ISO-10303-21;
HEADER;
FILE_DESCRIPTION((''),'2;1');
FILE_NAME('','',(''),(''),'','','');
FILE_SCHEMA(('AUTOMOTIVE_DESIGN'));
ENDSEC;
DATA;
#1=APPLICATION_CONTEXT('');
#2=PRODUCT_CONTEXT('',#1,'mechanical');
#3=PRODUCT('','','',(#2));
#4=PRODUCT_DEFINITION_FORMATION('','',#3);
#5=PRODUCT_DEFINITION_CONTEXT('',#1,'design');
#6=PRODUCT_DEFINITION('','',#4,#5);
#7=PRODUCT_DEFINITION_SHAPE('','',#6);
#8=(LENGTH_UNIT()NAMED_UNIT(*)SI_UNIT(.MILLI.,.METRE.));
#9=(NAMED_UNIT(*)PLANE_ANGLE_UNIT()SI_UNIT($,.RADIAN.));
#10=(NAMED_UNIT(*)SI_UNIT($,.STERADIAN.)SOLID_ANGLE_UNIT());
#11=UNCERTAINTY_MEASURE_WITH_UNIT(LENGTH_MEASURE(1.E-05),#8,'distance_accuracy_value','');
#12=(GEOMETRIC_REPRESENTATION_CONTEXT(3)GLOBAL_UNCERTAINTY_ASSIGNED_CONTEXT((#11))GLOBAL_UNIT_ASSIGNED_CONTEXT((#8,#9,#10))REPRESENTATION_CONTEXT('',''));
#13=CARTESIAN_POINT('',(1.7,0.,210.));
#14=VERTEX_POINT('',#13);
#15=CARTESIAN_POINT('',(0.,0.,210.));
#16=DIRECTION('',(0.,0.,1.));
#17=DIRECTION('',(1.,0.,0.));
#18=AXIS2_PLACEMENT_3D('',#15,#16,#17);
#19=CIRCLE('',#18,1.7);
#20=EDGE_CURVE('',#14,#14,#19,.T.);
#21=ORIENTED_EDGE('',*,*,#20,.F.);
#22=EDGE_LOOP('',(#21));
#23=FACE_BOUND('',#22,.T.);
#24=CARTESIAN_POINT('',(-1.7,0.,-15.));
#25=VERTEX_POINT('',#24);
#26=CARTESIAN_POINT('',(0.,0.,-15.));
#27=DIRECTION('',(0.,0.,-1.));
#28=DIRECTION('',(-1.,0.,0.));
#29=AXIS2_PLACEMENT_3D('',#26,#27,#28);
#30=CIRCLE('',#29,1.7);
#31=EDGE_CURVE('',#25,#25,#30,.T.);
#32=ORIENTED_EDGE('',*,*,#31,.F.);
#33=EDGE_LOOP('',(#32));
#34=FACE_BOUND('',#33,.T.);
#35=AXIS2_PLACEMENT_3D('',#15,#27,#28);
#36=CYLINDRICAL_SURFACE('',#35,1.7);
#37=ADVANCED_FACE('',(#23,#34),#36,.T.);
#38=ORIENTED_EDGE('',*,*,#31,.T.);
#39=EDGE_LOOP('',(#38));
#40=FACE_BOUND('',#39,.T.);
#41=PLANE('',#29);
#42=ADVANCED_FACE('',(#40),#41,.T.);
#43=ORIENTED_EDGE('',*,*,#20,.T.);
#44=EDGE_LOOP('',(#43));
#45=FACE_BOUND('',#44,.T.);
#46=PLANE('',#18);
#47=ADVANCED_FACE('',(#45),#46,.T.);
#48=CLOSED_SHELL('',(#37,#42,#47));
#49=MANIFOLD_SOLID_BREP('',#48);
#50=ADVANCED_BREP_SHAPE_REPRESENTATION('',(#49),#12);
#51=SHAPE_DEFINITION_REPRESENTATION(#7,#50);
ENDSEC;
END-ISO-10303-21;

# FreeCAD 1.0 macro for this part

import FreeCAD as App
import Part
import Sketcher
from FreeCAD import Vector
Q = App.Units.Quantity

doc = App.newDocument("Part")
body = doc.addObject("PartDesign::Body", "Body")

# Sketch on XY plane
sketch1 = body.newObject("Sketcher::SketchObject", "Sketch")
sketch1.AttachmentSupport = (doc.getObject("XY_Plane"), [""])
sketch1.MapMode = "FlatFace"
sketch1.addGeometry(Part.Circle(Vector(0, 0, 0), Vector(0, 0, 1), 1.7), False)
sketch1.addConstraint([
    Sketcher.Constraint("Coincident", 0, 3, -1, 1),
    Sketcher.Constraint("Diameter", 0, Q("3.4 mm")),
])
pad1 = body.newObject("PartDesign::Pad", "Pad")
pad1.Profile = sketch1
pad1.Length = 210

# Sketch on XY plane
sketch2 = body.newObject("Sketcher::SketchObject", "Sketch001")
sketch2.AttachmentSupport = (doc.getObject("XY_Plane"), [""])
sketch2.MapMode = "FlatFace"
sketch2.AttachmentOffset = App.Placement(Vector(0, 0, -15), App.Rotation())
sketch2.addGeometry(Part.Circle(Vector(0, 0, 0), Vector(0, 0, 1), 1.7), False)
sketch2.addConstraint([
    Sketcher.Constraint("Coincident", 0, 3, -1, 1),
    Sketcher.Constraint("Diameter", 0, Q("3.4 mm")),
])
pad2 = body.newObject("PartDesign::Pad", "Pad001")
pad2.Profile = sketch2
pad2.Length = 15

doc.recompute()
